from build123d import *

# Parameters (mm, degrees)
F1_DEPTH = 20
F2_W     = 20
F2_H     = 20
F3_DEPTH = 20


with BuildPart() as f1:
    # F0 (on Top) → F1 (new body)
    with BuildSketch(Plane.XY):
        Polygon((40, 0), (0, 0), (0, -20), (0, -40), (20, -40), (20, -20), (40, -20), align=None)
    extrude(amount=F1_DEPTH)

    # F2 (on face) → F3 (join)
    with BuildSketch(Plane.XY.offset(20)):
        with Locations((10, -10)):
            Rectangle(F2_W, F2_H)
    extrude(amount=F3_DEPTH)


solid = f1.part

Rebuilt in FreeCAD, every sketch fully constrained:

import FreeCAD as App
import Part
import Sketcher
from FreeCAD import Vector
Q = App.Units.Quantity


def add_polygon(sketch, points):
    """Adds a closed chain of lines whose ends are joined by coincident constraints."""
    first, n = sketch.GeometryCount, len(points)
    for a, b in zip(points, points[1:] + points[:1]):
        sketch.addGeometry(Part.LineSegment(App.Vector(*a, 0), App.Vector(*b, 0)), False)
    for i in range(n):
        sketch.addConstraint(Sketcher.Constraint("Coincident", first + i, 2, first + (i + 1) % n, 1))

doc = App.newDocument("Part")
body = doc.addObject("PartDesign::Body", "Body")

# Sketch on XY plane
sketch1 = body.newObject("Sketcher::SketchObject", "Sketch")
sketch1.AttachmentSupport = (doc.getObject("XY_Plane"), [""])
sketch1.MapMode = "FlatFace"
add_polygon(sketch1, [(40, 0), (0, 0), (0, -40), (20, -40), (20, -20), (40, -20)])  # lines 0-5
sketch1.addConstraint(Sketcher.Constraint("Horizontal", 0))
sketch1.addConstraint(Sketcher.Constraint("Vertical", 1))
sketch1.addConstraint(Sketcher.Constraint("Horizontal", 2))
sketch1.addConstraint(Sketcher.Constraint("Vertical", 3))
sketch1.addConstraint(Sketcher.Constraint("Horizontal", 4))
sketch1.addConstraint(Sketcher.Constraint("Vertical", 5))
sketch1.addConstraint(Sketcher.Constraint("Coincident", 0, 2, -1, 1))
sketch1.addConstraint(Sketcher.Constraint("Equal", 2, 4))
sketch1.addConstraint(Sketcher.Constraint("Equal", 0, 1))
sketch1.addConstraint(Sketcher.Constraint("Equal", 4, 3))
sketch1.addConstraint(Sketcher.Constraint("DistanceX", 0, 2, 0, 1, Q("40 mm")))
pad1 = body.newObject("PartDesign::Pad", "Pad")
pad1.Profile = sketch1
pad1.Length = 20

# Sketch on XY plane
sketch2 = body.newObject("Sketcher::SketchObject", "Sketch001")
sketch2.AttachmentSupport = (doc.getObject("XY_Plane"), [""])
sketch2.MapMode = "FlatFace"
sketch2.AttachmentOffset = App.Placement(Vector(0, 0, 20), App.Rotation())
add_polygon(sketch2, [(0, 0), (0, -20), (20, -20), (20, 0)])  # lines 0-3
sketch2.addConstraint(Sketcher.Constraint("Vertical", 0))
sketch2.addConstraint(Sketcher.Constraint("Horizontal", 1))
sketch2.addConstraint(Sketcher.Constraint("Vertical", 2))
sketch2.addConstraint(Sketcher.Constraint("Horizontal", 3))
sketch2.addConstraint(Sketcher.Constraint("Coincident", 3, 2, -1, 1))
sketch2.addConstraint(Sketcher.Constraint("Equal", 3, 0))
sketch2.addConstraint(Sketcher.Constraint("DistanceX", 1, 1, 1, 2, Q("20 mm")))
pad2 = body.newObject("PartDesign::Pad", "Pad001")
pad2.Profile = sketch2
pad2.Length = 20

doc.recompute()
